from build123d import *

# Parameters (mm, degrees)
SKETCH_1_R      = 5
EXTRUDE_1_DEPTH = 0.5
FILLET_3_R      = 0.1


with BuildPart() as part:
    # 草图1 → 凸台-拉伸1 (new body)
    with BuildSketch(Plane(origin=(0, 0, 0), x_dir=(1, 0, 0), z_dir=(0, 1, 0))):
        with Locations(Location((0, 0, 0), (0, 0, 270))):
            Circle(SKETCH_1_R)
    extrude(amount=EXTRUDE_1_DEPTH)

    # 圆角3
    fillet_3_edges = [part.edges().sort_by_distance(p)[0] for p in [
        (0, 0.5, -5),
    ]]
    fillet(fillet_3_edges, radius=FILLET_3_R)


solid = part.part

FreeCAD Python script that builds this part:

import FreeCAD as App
import Part
import Sketcher
from FreeCAD import Vector


def edges_at(feature, points):
    """Names of the edges that pass closest to the given points."""
    edges = feature.Shape.Edges
    near = lambda p: min(range(len(edges)), key=lambda i: edges[i].distToShape(Part.Vertex(*p))[0])
    return sorted({f"Edge{near(p) + 1}" for p in points})

doc = App.newDocument("Part")
body = doc.addObject("PartDesign::Body", "Body")

# Sketch on XZ plane
sketch1 = body.newObject("Sketcher::SketchObject", "Sketch")
sketch1.AttachmentSupport = (doc.getObject("XZ_Plane"), [""])
sketch1.MapMode = "FlatFace"
sketch1.addGeometry(Part.Circle(Vector(0, 0, 0), Vector(0, 0, 1), 5), False)
sketch1.addConstraint([
    Sketcher.Constraint("Coincident", 0, 3, -1, 1),
    Sketcher.Constraint("Diameter", 0, 10.0),
])
pad1 = body.newObject("PartDesign::Pad", "Pad")
pad1.Profile = sketch1
pad1.Length = 0.5
pad1.Reversed = True
doc.recompute()

fillet = body.newObject("PartDesign::Fillet", "Fillet")
fillet.Base = (pad1, edges_at(pad1, [(0, 0.5, -5)]))
fillet.Radius = 0.1

doc.recompute()
